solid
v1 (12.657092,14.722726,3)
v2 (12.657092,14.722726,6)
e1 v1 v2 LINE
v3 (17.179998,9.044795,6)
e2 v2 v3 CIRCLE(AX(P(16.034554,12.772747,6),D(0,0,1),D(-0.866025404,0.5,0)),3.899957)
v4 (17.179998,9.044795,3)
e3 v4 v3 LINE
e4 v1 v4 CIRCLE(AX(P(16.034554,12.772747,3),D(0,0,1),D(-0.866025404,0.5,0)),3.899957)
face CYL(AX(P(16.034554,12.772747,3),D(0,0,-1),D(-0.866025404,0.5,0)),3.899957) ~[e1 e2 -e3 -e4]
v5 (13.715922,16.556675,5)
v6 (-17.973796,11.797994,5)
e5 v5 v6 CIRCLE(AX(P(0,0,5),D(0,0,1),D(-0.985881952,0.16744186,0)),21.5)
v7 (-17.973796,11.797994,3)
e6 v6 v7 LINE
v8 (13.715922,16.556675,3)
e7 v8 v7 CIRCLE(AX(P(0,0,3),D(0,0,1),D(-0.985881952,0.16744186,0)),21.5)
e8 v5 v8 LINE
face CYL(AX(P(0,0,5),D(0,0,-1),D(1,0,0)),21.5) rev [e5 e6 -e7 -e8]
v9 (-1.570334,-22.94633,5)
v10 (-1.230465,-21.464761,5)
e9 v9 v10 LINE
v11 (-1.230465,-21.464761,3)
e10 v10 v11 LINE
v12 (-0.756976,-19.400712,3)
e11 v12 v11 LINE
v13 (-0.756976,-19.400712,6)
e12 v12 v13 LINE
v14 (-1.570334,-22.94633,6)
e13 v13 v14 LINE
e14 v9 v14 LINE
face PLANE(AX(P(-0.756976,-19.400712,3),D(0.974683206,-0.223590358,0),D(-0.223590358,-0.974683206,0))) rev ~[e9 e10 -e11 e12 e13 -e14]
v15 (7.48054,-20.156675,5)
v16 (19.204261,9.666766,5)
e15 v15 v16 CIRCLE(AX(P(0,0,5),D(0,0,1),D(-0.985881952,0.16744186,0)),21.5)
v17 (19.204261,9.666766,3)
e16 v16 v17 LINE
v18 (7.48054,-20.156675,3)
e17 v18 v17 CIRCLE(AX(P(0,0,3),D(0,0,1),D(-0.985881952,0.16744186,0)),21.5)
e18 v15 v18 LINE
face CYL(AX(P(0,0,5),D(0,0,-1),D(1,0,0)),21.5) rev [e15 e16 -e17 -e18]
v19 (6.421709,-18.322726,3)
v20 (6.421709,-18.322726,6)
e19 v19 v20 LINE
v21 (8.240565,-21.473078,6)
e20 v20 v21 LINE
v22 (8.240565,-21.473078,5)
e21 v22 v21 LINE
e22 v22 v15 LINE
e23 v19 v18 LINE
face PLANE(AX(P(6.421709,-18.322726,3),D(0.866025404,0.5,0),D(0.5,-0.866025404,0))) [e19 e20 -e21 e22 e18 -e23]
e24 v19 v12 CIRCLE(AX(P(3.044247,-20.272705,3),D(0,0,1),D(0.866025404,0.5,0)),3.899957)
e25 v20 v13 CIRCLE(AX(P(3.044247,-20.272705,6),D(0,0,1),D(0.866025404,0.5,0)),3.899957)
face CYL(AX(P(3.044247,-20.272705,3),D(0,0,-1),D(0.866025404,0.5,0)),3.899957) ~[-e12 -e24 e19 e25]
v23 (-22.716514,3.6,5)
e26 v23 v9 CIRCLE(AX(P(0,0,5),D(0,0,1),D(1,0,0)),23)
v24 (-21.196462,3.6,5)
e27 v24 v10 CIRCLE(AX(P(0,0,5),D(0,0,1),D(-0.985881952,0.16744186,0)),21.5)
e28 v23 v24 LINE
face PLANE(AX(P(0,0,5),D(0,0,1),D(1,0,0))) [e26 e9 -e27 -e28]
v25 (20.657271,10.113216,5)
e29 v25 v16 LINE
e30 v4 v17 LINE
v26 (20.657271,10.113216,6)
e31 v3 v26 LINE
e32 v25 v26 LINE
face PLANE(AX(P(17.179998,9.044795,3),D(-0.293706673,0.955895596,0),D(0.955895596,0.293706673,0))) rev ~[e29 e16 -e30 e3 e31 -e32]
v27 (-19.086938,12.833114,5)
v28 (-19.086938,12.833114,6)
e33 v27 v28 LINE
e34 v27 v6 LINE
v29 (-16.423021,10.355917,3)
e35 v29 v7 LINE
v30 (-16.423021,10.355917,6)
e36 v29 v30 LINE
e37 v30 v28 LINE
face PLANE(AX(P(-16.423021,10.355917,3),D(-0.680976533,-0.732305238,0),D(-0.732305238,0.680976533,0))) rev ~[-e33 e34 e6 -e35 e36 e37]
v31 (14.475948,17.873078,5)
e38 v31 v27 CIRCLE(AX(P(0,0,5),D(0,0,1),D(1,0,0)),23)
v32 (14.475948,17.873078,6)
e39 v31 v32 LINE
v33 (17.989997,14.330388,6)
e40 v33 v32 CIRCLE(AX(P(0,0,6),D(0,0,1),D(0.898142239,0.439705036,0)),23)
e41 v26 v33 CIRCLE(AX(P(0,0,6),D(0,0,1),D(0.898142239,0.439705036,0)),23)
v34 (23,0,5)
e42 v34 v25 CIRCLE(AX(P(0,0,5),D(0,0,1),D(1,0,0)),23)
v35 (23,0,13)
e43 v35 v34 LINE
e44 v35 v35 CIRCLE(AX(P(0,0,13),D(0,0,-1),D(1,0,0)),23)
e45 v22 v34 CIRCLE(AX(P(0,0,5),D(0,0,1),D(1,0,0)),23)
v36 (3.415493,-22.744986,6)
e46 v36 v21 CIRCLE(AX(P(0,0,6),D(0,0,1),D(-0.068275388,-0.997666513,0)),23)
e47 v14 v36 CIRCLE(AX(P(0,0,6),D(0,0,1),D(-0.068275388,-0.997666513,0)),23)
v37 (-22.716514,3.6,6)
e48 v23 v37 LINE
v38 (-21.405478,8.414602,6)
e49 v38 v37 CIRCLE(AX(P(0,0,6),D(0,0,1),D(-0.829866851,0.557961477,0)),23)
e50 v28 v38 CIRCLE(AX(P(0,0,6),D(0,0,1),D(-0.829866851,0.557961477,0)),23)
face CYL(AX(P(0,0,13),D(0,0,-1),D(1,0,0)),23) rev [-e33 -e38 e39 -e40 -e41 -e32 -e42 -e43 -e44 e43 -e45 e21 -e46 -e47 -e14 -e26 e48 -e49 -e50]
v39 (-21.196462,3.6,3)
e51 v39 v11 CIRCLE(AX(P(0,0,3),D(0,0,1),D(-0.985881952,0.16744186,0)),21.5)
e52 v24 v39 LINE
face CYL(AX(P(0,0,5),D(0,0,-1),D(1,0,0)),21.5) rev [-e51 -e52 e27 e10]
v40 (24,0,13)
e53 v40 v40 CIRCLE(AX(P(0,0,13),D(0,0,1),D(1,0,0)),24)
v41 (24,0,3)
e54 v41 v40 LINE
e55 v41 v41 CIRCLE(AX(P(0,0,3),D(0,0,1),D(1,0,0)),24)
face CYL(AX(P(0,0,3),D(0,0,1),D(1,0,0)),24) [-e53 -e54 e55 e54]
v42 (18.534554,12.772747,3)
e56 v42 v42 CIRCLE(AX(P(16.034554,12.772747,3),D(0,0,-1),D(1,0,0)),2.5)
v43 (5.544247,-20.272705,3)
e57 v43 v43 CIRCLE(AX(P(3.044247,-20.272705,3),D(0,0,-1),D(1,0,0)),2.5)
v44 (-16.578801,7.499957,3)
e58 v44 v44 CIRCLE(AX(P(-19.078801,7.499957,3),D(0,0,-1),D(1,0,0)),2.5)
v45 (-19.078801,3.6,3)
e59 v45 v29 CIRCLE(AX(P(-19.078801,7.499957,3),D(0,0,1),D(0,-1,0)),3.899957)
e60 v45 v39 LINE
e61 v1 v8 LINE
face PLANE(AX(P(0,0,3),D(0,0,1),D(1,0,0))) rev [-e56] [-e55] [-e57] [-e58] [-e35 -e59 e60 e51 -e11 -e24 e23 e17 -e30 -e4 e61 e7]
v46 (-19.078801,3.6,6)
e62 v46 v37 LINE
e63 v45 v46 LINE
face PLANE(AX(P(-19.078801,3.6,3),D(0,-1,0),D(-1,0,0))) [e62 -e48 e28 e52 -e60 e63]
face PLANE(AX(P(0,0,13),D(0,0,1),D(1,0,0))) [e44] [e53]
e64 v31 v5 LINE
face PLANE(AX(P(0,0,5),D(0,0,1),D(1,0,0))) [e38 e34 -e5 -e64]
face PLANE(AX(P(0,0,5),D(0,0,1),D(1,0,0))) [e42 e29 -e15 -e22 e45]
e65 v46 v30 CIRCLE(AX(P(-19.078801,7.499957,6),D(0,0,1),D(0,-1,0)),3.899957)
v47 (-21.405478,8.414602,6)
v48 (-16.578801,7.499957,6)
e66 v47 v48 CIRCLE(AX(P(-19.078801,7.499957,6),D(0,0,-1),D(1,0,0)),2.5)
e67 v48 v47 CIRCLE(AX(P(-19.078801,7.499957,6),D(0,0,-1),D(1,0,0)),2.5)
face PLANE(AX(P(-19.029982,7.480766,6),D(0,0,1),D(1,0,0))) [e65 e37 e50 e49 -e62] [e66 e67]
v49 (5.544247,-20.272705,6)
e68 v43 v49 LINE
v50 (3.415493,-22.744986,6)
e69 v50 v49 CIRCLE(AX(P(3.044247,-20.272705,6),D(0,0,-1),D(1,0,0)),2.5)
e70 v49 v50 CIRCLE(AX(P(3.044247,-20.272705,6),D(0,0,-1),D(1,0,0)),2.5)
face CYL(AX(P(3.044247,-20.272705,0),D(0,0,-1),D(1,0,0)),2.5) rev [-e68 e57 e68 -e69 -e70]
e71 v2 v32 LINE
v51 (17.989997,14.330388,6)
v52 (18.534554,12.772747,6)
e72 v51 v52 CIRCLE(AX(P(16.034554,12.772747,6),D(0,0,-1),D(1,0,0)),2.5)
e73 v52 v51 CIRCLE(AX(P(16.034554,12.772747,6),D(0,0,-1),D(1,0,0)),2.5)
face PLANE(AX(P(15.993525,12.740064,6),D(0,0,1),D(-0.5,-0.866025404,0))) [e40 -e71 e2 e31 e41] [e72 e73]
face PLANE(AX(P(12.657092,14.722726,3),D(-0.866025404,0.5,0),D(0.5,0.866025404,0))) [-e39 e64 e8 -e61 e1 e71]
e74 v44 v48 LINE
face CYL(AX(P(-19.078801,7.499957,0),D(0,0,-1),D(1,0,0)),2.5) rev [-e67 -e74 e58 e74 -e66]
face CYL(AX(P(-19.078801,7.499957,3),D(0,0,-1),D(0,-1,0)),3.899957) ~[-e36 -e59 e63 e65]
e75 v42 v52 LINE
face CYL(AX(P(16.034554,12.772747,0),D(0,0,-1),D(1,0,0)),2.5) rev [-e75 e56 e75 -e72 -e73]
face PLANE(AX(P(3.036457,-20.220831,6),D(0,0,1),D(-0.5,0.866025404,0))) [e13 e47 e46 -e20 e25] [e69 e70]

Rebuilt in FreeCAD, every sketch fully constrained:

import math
import FreeCAD as App
import Part
import Sketcher
Q = App.Units.Quantity


def add_polygon(sketch, points):
    """Adds a closed chain of lines whose ends are joined by coincident constraints."""
    first, n = sketch.GeometryCount, len(points)
    for a, b in zip(points, points[1:] + points[:1]):
        sketch.addGeometry(Part.LineSegment(App.Vector(*a, 0), App.Vector(*b, 0)), False)
    for i in range(n):
        sketch.addConstraint(Sketcher.Constraint("Coincident", first + i, 2, first + (i + 1) % n, 1))

doc = App.newDocument("Part")
params = doc.addObject("Spreadsheet::Sheet", "Params")
for row, (alias, value) in enumerate([
    ("sketch1_width", "1 mm"),
    ("sketch1_height", "2 mm"),
    ("sketch1_height2", "10 mm"),
    ("sketch1_width2", "2.5 mm"),
    ("revolution_angle", "360 deg"),
    ("sketch2_diameter", "5.25 mm"),
    ("pocket1_length", "5.5 mm"),
    ("sketch3_radius", "23 mm"),
    ("pad1_length", "3 mm"),
    ("sketch4_diameter", "5 mm"),
], start=1):
    params.set(f"A{row}", alias)
    params.set(f"B{row}", "=" + value)
    params.setAlias(f"B{row}", alias)

body = doc.addObject("PartDesign::Body", "Body")

sketch1 = doc.addObject("Sketcher::SketchObject", "Sketch")
body.addObject(sketch1)
sketch1.AttachmentSupport = (doc.XZ_Plane, [""])
sketch1.MapMode = "FlatFace"
add_polygon(sketch1, [(21.5, 5), (21.5, 3), (24, 3), (24, 13), (23, 13), (23, 5)])
sketch1.addConstraint(Sketcher.Constraint("Vertical", 0))
sketch1.addConstraint(Sketcher.Constraint("Horizontal", 1))
sketch1.addConstraint(Sketcher.Constraint("Vertical", 2))
sketch1.addConstraint(Sketcher.Constraint("Horizontal", 3))
sketch1.addConstraint(Sketcher.Constraint("Vertical", 4))
sketch1.addConstraint(Sketcher.Constraint("Horizontal", 5))
sketch1.addConstraint(Sketcher.Constraint("DistanceX", 3, 2, 3, 1, Q("1 mm")))
sketch1.addConstraint(Sketcher.Constraint("DistanceY", 0, 2, 0, 1, Q("2 mm")))
sketch1.addConstraint(Sketcher.Constraint("DistanceY", 2, 1, 2, 2, Q("10 mm")))
sketch1.addConstraint(Sketcher.Constraint("DistanceX", 1, 1, 1, 2, Q("2.5 mm")))
sketch1.addConstraint(Sketcher.Constraint("DistanceY", -1, 1, 0, 2, Q("3 mm")))
sketch1.addConstraint(Sketcher.Constraint("DistanceX", -1, 1, 1, 2, Q("24 mm")))
sketch1.setExpression("Constraints[12]", "Params.sketch1_width")
sketch1.setExpression("Constraints[13]", "Params.sketch1_height")
sketch1.setExpression("Constraints[14]", "Params.sketch1_height2")
sketch1.setExpression("Constraints[15]", "Params.sketch1_width2")
revolution = doc.addObject("PartDesign::Revolution", "Revolution")
body.addObject(revolution)
revolution.Profile = sketch1
revolution.ReferenceAxis = (sketch1, ["V_Axis"])
revolution.setExpression("Angle", "Params.revolution_angle")

sketch2 = doc.addObject("Sketcher::SketchObject", "Sketch001")
body.addObject(sketch2)
sketch2.AttachmentSupport = (doc.XY_Plane, [""])
sketch2.MapMode = "FlatFace"
sketch2.addGeometry(Part.Circle(App.Vector(-17.5, 0, 0), App.Vector(0, 0, 1), 2.6), False)
sketch2.addGeometry(Part.Circle(App.Vector(-8.8, 15.2, 0), App.Vector(0, 0, 1), 2.6), False)
sketch2.addGeometry(Part.Circle(App.Vector(8.8, 15.2, 0), App.Vector(0, 0, 1), 2.6), False)
sketch2.addGeometry(Part.Circle(App.Vector(17.5, 0, 0), App.Vector(0, 0, 1), 2.6), False)
sketch2.addGeometry(Part.Circle(App.Vector(8.8, -15.2, 0), App.Vector(0, 0, 1), 2.6), False)
sketch2.addGeometry(Part.Circle(App.Vector(-8.8, -15.2, 0), App.Vector(0, 0, 1), 2.6), False)
sketch2.addConstraint(Sketcher.Constraint("Equal", 0, 1))
sketch2.addConstraint(Sketcher.Constraint("Equal", 1, 2))
sketch2.addConstraint(Sketcher.Constraint("Equal", 2, 3))
sketch2.addConstraint(Sketcher.Constraint("Equal", 3, 4))
sketch2.addConstraint(Sketcher.Constraint("Equal", 4, 5))
sketch2.addConstraint(Sketcher.Constraint("Symmetric", 0, 3, 3, 3, -1, 1))
sketch2.addConstraint(Sketcher.Constraint("Symmetric", 1, 3, 4, 3, -1, 1))
sketch2.addConstraint(Sketcher.Constraint("Symmetric", 2, 3, 5, 3, -1, 1))
sketch2.addConstraint(Sketcher.Constraint("Symmetric", 1, 3, 2, 3, -2))
sketch2.addConstraint(Sketcher.Constraint("PointOnObject", 0, 3, -1))
sketch2.addConstraint(Sketcher.Constraint("Diameter", 0, Q("5.25 mm")))
sketch2.addConstraint(Sketcher.Constraint("DistanceX", 0, 3, 3, 3, Q("35 mm")))
sketch2.addConstraint(Sketcher.Constraint("DistanceX", 1, 3, 2, 3, Q("17.5 mm")))
sketch2.addConstraint(Sketcher.Constraint("DistanceY", 4, 3, 2, 3, Q("30.310889 mm")))
sketch2.setExpression("Constraints[10]", "Params.sketch2_diameter")
pocket1 = doc.addObject("PartDesign::Pocket", "Pocket")
body.addObject(pocket1)
pocket1.Profile = sketch2
pocket1.setExpression("Length", "Params.pocket1_length")
pocket1.Reversed = True

sketch3 = doc.addObject("Sketcher::SketchObject", "Sketch002")
body.addObject(sketch3)
sketch3.AttachmentSupport = (doc.XY_Plane, [""])
sketch3.MapMode = "FlatFace"
sketch3.AttachmentOffset = App.Placement(App.Vector(0, 0, 3), App.Rotation())
sketch3.addGeometry(Part.ArcOfCircle(Part.Circle(App.Vector(0, 0, 0), App.Vector(0, 0, 1), 23), math.radians(146), math.radians(171)), False)
sketch3.addGeometry(Part.LineSegment(App.Vector(-22.7, 3.6, 0), App.Vector(-19.1, 3.6, 0)), False)
sketch3.addGeometry(Part.ArcOfCircle(Part.Circle(App.Vector(-19.1, 7.5, 0), App.Vector(0, 0, 1), 3.9), math.radians(-90), math.radians(47)), False)
sketch3.addGeometry(Part.LineSegment(App.Vector(-16.4, 10.4, 0), App.Vector(-19.1, 12.8, 0)), False)
sketch3.addConstraint(Sketcher.Constraint("Coincident", 0, 2, 1, 1))
sketch3.addConstraint(Sketcher.Constraint("Tangent", 1, 2, 2, 1))
sketch3.addConstraint(Sketcher.Constraint("Tangent", 2, 2, 3, 1))
sketch3.addConstraint(Sketcher.Constraint("Coincident", 3, 2, 0, 1))
sketch3.addConstraint(Sketcher.Constraint("Horizontal", 1))
sketch3.addConstraint(Sketcher.Constraint("Coincident", 0, 3, -1, 1))
sketch3.addConstraint(Sketcher.Constraint("Radius", 0, Q("23 mm")))
sketch3.addConstraint(Sketcher.Constraint("DistanceY", -1, 1, 0, 2, Q("3.6 mm")))
sketch3.addConstraint(Sketcher.Constraint("Angle", 3, Q("137.08 deg")))
sketch3.addConstraint(Sketcher.Constraint("Radius", 2, Q("3.899957 mm")))
sketch3.addConstraint(Sketcher.Constraint("DistanceX", 2, 3, -1, 1, Q("19.078801 mm")))
sketch3.setExpression("Constraints[6]", "Params.sketch3_radius")
pad1 = doc.addObject("PartDesign::Pad", "Pad")
body.addObject(pad1)
pad1.Profile = sketch3
pad1.setExpression("Length", "Params.pad1_length")
doc.recompute()

polarpattern = doc.addObject("PartDesign::PolarPattern", "PolarPattern")
body.addObject(polarpattern)
polarpattern.Originals = [pad1]
polarpattern.Axis = (doc.Z_Axis, [""])
polarpattern.Angle = 360
polarpattern.Occurrences = 3
body.Tip = polarpattern

sketch4 = doc.addObject("Sketcher::SketchObject", "Sketch003")
body.addObject(sketch4)
sketch4.AttachmentSupport = (doc.XY_Plane, [""])
sketch4.MapMode = "FlatFace"
sketch4.addGeometry(Part.Circle(App.Vector(16, 12.8, 0), App.Vector(0, 0, 1), 2.5), False)
sketch4.addGeometry(Part.Circle(App.Vector(3, -20.3, 0), App.Vector(0, 0, 1), 2.5), False)
sketch4.addGeometry(Part.Circle(App.Vector(-19.1, 7.5, 0), App.Vector(0, 0, 1), 2.5), False)
sketch4.addConstraint(Sketcher.Constraint("Equal", 0, 1))
sketch4.addConstraint(Sketcher.Constraint("Equal", 1, 2))
sketch4.addConstraint(Sketcher.Constraint("Diameter", 0, Q("5 mm")))
sketch4.addConstraint(Sketcher.Constraint("DistanceX", 2, 3, -1, 1, Q("19.078801 mm")))
sketch4.addConstraint(Sketcher.Constraint("DistanceY", 2, 3, 0, 3, Q("5.27279 mm")))
sketch4.addConstraint(Sketcher.Constraint("DistanceX", -1, 1, 0, 3, Q("16.034554 mm")))
sketch4.addConstraint(Sketcher.Constraint("DistanceY", -1, 1, 0, 3, Q("12.772747 mm")))
sketch4.addConstraint(Sketcher.Constraint("DistanceX", -1, 1, 1, 3, Q("3.044247 mm")))
sketch4.addConstraint(Sketcher.Constraint("DistanceY", 1, 3, -1, 1, Q("20.272705 mm")))
sketch4.setExpression("Constraints[2]", "Params.sketch4_diameter")
pocket2 = doc.addObject("PartDesign::Pocket", "Pocket001")
body.addObject(pocket2)
pocket2.Profile = sketch4
pocket2.Type = "ThroughAll"
pocket2.Reversed = True

doc.recompute()
